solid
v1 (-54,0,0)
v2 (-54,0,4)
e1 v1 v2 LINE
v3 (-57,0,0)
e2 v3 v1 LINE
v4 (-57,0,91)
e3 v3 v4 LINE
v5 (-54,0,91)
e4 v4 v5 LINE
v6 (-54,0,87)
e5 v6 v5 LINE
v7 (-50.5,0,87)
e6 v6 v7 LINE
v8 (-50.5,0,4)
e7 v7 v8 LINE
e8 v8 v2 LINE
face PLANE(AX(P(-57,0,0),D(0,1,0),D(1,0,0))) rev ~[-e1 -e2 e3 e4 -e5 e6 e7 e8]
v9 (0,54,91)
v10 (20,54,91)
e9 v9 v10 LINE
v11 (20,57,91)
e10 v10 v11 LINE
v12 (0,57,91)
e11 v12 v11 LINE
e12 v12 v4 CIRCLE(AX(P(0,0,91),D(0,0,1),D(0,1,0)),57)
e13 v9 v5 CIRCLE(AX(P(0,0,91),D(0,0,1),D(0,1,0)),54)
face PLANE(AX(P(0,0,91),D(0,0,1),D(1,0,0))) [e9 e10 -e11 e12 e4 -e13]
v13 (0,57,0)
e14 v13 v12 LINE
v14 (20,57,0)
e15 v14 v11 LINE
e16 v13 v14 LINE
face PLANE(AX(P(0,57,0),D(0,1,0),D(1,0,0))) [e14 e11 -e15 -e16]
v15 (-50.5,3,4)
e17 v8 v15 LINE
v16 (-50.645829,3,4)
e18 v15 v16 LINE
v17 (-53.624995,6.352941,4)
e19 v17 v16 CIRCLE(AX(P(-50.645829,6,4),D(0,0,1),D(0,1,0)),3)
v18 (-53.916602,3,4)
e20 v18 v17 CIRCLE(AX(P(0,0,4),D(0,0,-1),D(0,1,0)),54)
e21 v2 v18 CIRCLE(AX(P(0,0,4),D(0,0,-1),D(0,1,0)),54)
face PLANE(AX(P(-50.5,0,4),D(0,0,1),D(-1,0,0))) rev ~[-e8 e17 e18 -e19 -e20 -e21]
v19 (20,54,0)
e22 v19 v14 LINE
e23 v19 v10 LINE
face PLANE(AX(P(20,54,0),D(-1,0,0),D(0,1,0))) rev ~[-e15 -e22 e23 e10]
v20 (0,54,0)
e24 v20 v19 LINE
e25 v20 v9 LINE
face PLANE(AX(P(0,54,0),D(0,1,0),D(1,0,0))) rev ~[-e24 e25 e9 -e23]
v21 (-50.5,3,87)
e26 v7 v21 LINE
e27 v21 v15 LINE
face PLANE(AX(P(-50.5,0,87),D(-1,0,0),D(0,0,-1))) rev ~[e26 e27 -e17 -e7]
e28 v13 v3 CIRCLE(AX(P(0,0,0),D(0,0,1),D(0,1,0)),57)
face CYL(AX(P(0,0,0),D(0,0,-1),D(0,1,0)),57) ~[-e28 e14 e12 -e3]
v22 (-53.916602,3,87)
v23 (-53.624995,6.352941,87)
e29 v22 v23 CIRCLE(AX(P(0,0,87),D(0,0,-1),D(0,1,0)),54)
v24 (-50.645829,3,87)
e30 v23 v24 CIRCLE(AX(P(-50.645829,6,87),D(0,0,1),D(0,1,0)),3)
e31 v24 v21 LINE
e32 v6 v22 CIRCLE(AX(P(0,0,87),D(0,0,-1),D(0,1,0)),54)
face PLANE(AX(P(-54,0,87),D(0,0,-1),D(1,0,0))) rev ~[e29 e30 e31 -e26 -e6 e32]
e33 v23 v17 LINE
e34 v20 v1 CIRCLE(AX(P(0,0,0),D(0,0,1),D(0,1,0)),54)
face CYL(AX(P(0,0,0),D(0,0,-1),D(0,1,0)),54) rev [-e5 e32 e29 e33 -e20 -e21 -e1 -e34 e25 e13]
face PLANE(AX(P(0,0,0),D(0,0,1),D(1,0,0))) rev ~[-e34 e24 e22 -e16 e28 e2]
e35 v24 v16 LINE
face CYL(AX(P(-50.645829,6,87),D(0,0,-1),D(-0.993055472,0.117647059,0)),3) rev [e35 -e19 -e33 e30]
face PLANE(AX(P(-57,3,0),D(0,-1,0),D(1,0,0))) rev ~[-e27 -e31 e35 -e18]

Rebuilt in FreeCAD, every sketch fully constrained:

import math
import FreeCAD as App
import Part
import Sketcher
from FreeCAD import Vector
Q = App.Units.Quantity


def edges_at(feature, points):
    """Names of the edges that pass closest to the given points."""
    edges = feature.Shape.Edges
    near = lambda p: min(range(len(edges)), key=lambda i: edges[i].distToShape(Part.Vertex(*p))[0])
    return sorted({f"Edge{near(p) + 1}" for p in points})


def add_polygon(sketch, points):
    """Adds a closed chain of lines whose ends are joined by coincident constraints."""
    first, n = sketch.GeometryCount, len(points)
    for a, b in zip(points, points[1:] + points[:1]):
        sketch.addGeometry(Part.LineSegment(App.Vector(*a, 0), App.Vector(*b, 0)), False)
    for i in range(n):
        sketch.addConstraint(Sketcher.Constraint("Coincident", first + i, 2, first + (i + 1) % n, 1))

doc = App.newDocument("Part")
body = doc.addObject("PartDesign::Body", "Body")

sketch1 = body.newObject("Sketcher::SketchObject", "Sketch")
sketch1.AttachmentSupport = (doc.getObject("XY_Plane"), [""])
sketch1.MapMode = "FlatFace"
sketch1.addGeometry([
    Part.ArcOfCircle(Part.Circle(Vector(0, 0, 0), Vector(0, 0, 1), 54), math.radians(90), math.radians(180)),
    Part.LineSegment(Vector(0, 54, 0), Vector(20, 54, 0)),
    Part.LineSegment(Vector(20, 54, 0), Vector(20, 57, 0)),
    Part.LineSegment(Vector(20, 57, 0), Vector(0, 57, 0)),
    Part.ArcOfCircle(Part.Circle(Vector(0, 0, 0), Vector(0, 0, 1), 57), math.radians(90), math.radians(180)),
    Part.LineSegment(Vector(-57, 0, 0), Vector(-54, 0, 0)),
], False)
sketch1.addConstraint([
    Sketcher.Constraint("Tangent", 0, 1, 1, 1),
    Sketcher.Constraint("Coincident", 1, 2, 2, 1),
    Sketcher.Constraint("Coincident", 2, 2, 3, 1),
    Sketcher.Constraint("Tangent", 3, 2, 4, 1),
    Sketcher.Constraint("Coincident", 4, 2, 5, 1),
    Sketcher.Constraint("Coincident", 5, 2, 0, 2),
    Sketcher.Constraint("Horizontal", 1),
    Sketcher.Constraint("Vertical", 2),
    Sketcher.Constraint("Horizontal", 3),
    Sketcher.Constraint("Horizontal", 5),
    Sketcher.Constraint("Coincident", 0, 3, -1, 1),
    Sketcher.Constraint("Coincident", 4, 3, -1, 1),
    Sketcher.Constraint("PointOnObject", 4, 2, -1),
    Sketcher.Constraint("Radius", 0, Q("54 mm")),
    Sketcher.Constraint("Radius", 4, Q("57 mm")),
    Sketcher.Constraint("DistanceX", 1, 1, 1, 2, Q("20 mm")),
])
pad1 = body.newObject("PartDesign::Pad", "Pad")
pad1.Profile = sketch1
pad1.Length = 91

sketch2 = body.newObject("Sketcher::SketchObject", "Sketch001")
sketch2.AttachmentSupport = (doc.getObject("XZ_Plane"), [""])
sketch2.MapMode = "FlatFace"
add_polygon(sketch2, [(-54, 87), (-54, 4), (-50.5, 4), (-50.5, 87)])
sketch2.addConstraint([
    Sketcher.Constraint("Vertical", 0),
    Sketcher.Constraint("Horizontal", 1),
    Sketcher.Constraint("Vertical", 2),
    Sketcher.Constraint("Horizontal", 3),
    Sketcher.Constraint("DistanceY", 0, 2, 0, 1, Q("83 mm")),
    Sketcher.Constraint("DistanceX", 1, 1, 1, 2, Q("3.5 mm")),
    Sketcher.Constraint("DistanceY", -1, 1, 0, 2, Q("4 mm")),
    Sketcher.Constraint("DistanceX", 0, 2, -1, 1, Q("54 mm")),
])
pad2 = body.newObject("PartDesign::Pad", "Pad001")
pad2.Profile = sketch2
pad2.Length = 3
pad2.Reversed = True
doc.recompute()

fillet = body.newObject("PartDesign::Fillet", "Fillet")
fillet.Base = (pad2, edges_at(pad2, [(-53.917, 3, 45.5)]))
fillet.Radius = 3

doc.recompute()
